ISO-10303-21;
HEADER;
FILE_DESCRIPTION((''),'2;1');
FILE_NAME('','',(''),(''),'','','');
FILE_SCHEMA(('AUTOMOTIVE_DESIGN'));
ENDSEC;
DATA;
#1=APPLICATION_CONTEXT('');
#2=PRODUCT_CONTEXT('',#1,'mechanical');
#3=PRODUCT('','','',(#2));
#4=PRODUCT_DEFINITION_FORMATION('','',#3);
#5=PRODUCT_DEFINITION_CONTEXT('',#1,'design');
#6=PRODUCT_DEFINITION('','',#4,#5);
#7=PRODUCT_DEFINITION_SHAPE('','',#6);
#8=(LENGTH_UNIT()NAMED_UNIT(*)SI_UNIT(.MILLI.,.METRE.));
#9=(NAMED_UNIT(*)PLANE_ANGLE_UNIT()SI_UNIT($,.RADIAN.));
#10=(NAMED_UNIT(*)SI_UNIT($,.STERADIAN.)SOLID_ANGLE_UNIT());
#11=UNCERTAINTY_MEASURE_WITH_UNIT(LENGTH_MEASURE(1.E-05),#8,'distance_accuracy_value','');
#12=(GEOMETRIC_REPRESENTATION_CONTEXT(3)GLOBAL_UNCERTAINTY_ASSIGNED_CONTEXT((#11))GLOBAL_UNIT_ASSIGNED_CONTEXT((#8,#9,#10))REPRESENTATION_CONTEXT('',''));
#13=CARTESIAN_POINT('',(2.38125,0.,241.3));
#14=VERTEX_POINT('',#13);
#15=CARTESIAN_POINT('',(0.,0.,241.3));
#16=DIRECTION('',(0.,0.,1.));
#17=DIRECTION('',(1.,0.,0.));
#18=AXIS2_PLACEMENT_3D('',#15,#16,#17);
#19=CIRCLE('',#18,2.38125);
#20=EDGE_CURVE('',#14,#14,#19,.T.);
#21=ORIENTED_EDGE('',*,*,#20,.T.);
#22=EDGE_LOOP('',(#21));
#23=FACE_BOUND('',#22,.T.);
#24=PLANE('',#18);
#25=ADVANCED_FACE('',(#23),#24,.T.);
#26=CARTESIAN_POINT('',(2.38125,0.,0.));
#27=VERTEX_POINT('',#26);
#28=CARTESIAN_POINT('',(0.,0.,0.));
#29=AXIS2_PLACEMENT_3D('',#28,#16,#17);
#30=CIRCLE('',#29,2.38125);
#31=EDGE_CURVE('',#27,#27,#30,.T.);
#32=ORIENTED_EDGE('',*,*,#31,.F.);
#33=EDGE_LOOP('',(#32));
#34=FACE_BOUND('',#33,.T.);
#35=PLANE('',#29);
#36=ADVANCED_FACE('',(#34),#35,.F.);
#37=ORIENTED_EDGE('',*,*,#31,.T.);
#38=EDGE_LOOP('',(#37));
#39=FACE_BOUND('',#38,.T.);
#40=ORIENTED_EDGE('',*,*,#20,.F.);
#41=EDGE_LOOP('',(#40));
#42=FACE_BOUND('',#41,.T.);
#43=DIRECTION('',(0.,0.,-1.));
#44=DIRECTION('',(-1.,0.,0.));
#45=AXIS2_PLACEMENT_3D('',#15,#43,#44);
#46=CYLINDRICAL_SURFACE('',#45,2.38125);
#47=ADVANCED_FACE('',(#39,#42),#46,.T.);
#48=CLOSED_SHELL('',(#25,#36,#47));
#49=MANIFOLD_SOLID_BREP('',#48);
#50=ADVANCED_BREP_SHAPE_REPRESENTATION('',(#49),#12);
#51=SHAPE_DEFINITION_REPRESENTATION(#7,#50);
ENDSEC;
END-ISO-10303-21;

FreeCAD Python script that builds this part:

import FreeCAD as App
import Part
import Sketcher
Q = App.Units.Quantity

doc = App.newDocument("Part")
body = doc.addObject("PartDesign::Body", "Body")

sketch1 = body.newObject("Sketcher::SketchObject", "Sketch")
sketch1.AttachmentSupport = (doc.getObject("XY_Plane"), [""])
sketch1.MapMode = "FlatFace"
sketch1.addGeometry(Part.Circle(App.Vector(0, 0, 0), App.Vector(0, 0, 1), 2.4), False)
sketch1.addConstraint([
    Sketcher.Constraint("Coincident", 0, 3, -1, 1),
    Sketcher.Constraint("Diameter", 0, Q("0.1875 in")),
])
pad1 = body.newObject("PartDesign::Pad", "Pad")
pad1.Profile = sketch1
pad1.Length = Q("9.5 in")

doc.recompute()
